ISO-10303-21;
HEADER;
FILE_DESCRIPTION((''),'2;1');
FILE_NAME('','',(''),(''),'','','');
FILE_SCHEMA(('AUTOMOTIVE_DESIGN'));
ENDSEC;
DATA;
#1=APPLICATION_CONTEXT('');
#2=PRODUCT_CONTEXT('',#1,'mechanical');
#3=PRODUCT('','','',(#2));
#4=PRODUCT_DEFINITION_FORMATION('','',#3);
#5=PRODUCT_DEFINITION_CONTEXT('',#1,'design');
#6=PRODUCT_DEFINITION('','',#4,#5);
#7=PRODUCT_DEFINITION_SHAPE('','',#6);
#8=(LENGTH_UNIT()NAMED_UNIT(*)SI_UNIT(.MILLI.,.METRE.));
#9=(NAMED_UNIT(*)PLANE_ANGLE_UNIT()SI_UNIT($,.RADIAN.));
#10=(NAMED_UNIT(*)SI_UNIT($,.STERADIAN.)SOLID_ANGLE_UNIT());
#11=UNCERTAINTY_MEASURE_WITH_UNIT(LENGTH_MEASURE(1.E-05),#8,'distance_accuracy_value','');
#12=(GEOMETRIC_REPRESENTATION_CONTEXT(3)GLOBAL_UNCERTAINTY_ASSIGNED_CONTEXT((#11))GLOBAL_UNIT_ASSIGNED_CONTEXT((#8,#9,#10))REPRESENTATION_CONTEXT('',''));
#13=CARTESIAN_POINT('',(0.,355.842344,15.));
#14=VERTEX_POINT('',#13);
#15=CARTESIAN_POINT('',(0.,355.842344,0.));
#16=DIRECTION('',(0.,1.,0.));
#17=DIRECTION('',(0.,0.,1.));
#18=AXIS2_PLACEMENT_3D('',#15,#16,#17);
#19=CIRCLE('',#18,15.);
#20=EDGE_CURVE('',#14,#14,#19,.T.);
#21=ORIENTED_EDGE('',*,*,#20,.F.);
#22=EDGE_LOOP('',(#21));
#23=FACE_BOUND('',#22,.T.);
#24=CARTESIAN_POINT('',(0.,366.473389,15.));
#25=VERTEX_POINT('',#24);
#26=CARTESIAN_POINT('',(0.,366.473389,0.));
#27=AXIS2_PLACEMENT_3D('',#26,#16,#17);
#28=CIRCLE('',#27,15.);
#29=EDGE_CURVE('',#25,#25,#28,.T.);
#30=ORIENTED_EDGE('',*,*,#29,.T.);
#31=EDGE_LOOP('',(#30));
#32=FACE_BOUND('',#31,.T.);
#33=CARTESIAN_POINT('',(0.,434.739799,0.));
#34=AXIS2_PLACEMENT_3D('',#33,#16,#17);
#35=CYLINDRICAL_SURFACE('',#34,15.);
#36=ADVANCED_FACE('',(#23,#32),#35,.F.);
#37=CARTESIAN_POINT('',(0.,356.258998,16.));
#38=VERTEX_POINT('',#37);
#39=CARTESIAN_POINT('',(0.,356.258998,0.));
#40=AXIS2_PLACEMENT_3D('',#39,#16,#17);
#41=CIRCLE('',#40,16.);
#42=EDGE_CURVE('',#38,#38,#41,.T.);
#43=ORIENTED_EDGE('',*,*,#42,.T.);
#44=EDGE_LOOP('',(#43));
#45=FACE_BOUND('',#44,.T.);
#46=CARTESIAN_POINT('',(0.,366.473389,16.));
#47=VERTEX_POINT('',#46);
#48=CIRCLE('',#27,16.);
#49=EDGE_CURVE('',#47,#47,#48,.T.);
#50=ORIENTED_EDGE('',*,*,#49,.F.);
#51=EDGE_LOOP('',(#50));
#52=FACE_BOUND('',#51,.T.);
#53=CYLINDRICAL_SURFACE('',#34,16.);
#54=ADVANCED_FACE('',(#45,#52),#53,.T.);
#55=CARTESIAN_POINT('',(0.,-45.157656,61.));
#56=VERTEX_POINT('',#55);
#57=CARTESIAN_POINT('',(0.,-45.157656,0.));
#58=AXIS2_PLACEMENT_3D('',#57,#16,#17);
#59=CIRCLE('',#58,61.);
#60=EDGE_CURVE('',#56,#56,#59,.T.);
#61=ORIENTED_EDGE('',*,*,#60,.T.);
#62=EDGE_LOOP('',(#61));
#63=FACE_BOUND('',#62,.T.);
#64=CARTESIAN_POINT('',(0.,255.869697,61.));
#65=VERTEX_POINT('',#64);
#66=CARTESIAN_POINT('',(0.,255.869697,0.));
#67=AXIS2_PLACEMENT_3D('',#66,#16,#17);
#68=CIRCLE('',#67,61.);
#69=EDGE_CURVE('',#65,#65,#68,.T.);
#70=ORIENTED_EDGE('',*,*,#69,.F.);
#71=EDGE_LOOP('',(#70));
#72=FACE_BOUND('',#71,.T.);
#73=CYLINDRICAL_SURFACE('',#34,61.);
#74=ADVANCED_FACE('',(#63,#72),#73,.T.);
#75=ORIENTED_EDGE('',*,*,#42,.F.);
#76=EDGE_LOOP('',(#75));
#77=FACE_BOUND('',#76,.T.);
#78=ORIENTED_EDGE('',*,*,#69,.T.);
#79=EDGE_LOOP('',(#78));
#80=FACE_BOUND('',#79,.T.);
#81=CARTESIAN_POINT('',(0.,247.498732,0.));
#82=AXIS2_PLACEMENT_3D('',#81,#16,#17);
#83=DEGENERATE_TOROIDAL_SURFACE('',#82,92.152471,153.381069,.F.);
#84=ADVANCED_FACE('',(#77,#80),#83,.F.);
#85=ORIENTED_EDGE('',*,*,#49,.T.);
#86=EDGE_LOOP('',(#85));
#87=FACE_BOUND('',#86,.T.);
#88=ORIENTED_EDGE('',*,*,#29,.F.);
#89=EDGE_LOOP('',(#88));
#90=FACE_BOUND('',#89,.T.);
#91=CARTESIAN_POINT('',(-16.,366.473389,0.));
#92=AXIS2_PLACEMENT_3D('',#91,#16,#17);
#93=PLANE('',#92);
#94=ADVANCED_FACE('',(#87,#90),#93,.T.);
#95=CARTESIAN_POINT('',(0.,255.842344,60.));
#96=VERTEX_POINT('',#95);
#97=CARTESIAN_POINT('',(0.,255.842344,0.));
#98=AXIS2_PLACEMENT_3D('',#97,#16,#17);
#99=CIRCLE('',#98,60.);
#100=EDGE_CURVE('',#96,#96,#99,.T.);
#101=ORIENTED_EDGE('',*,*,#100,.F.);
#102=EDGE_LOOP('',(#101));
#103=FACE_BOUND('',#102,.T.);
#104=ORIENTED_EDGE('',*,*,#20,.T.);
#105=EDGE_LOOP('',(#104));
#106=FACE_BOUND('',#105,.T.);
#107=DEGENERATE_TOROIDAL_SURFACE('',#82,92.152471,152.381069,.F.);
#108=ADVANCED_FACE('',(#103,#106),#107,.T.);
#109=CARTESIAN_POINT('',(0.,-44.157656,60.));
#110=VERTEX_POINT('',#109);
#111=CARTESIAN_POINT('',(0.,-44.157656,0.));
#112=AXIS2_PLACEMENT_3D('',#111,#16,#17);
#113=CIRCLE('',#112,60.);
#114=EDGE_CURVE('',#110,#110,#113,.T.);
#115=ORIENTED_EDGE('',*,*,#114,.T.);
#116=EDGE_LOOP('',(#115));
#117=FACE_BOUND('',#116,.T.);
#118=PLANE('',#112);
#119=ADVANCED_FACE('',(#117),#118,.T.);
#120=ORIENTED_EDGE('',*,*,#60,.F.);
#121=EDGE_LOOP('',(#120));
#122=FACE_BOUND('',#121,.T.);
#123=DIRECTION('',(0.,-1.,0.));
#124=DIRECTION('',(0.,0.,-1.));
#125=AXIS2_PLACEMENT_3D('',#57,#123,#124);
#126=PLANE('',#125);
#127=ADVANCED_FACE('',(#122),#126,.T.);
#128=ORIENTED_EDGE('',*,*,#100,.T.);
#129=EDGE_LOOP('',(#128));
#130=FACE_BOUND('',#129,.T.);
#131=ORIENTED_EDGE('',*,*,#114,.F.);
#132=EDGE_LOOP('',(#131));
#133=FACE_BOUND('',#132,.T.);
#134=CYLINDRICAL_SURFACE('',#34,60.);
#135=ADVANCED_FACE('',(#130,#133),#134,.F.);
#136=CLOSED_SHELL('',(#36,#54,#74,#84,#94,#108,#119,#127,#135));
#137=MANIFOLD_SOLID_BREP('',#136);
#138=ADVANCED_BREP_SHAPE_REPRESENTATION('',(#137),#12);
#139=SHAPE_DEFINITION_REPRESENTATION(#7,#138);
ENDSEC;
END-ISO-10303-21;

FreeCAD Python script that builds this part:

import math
import FreeCAD as App
import Part
import Sketcher

V = App.Vector
Q = App.Units.Quantity

doc = App.newDocument("Part")
params = doc.addObject("Spreadsheet::Sheet", "Params")
for row, (alias, value) in enumerate([
    ("sketch1_width", "60 mm"),
    ("sketch1_width2", "1 mm"),
    ("sketch1_width3", "61 mm"),
    ("sketch1_height", "300 mm"),
    ("revolution_angle", "360 deg"),
], start=1):
    params.set(f"A{row}", alias)
    params.set(f"B{row}", "=" + value)
    params.setAlias(f"B{row}", alias)

body = doc.addObject("PartDesign::Body", "Body")

sketch1 = body.newObject("Sketcher::SketchObject", "Sketch")
sketch1.AttachmentSupport = (doc.getObject("XY_Plane"), [""])
sketch1.MapMode = "FlatFace"
sketch1.addGeometry([
    Part.LineSegment(V(0, -44.157656, 0), V(-60, -44.157656, 0)),
    Part.LineSegment(V(-60, -44.157656, 0), V(-60, 255.842344, 0)),
    Part.ArcOfCircle(Part.Circle(V(92.152471, 247.498732, 0), V(0, 0, 1), 152.381069), math.radians(134.683304), math.radians(176.861205)),
    Part.LineSegment(V(-15, 355.842344, 0), V(-15, 366.473389, 0)),
    Part.LineSegment(V(-15, 366.473389, 0), V(-16, 366.473389, 0)),
    Part.LineSegment(V(-16, 366.473389, 0), V(-16, 356.258998, 0)),
    Part.ArcOfCircle(Part.Circle(V(92.152471, 247.498732, 0), V(0, 0, 1), 153.381069), math.radians(134.839456), math.radians(176.871456)),
    Part.LineSegment(V(-61, 255.869697, 0), V(-61, -45.157656, 0)),
    Part.LineSegment(V(-61, -45.157656, 0), V(0, -45.157656, 0)),
    Part.LineSegment(V(0, -45.157656, 0), V(0, -44.157656, 0)),
], False)
sketch1.addConstraint([
    Sketcher.Constraint("Coincident", 0, 2, 1, 1),
    Sketcher.Constraint("Coincident", 1, 2, 2, 2),
    Sketcher.Constraint("Coincident", 2, 1, 3, 1),
    Sketcher.Constraint("Coincident", 3, 2, 4, 1),
    Sketcher.Constraint("Coincident", 4, 2, 5, 1),
    Sketcher.Constraint("Coincident", 5, 2, 6, 1),
    Sketcher.Constraint("Coincident", 6, 2, 7, 1),
    Sketcher.Constraint("Coincident", 7, 2, 8, 1),
    Sketcher.Constraint("Coincident", 8, 2, 9, 1),
    Sketcher.Constraint("Coincident", 9, 2, 0, 1),
    Sketcher.Constraint("Horizontal", 0),
    Sketcher.Constraint("Vertical", 1),
    Sketcher.Constraint("Vertical", 3),
    Sketcher.Constraint("Horizontal", 4),
    Sketcher.Constraint("Vertical", 5),
    Sketcher.Constraint("Vertical", 7),
    Sketcher.Constraint("Horizontal", 8),
    Sketcher.Constraint("Vertical", 9),
    Sketcher.Constraint("Coincident", 6, 3, 2, 3),
    Sketcher.Constraint("PointOnObject", 8, 2, -2),
    Sketcher.Constraint("Equal", 4, 9),
    Sketcher.Constraint("DistanceX", 0, 2, 0, 1, Q("60 mm")),
    Sketcher.Constraint("DistanceX", 4, 2, 4, 1, Q("1 mm")),
    Sketcher.Constraint("DistanceX", 8, 1, 8, 2, Q("61 mm")),
    Sketcher.Constraint("DistanceY", 1, 1, 1, 2, Q("300 mm")),
    Sketcher.Constraint("DistanceX", 2, 1, -1, 1, Q("15 mm")),
    Sketcher.Constraint("DistanceY", 1, 2, 2, 1, Q("100 mm")),
    Sketcher.Constraint("Radius", 2, Q("152.381069 mm")),
    Sketcher.Constraint("Radius", 6, Q("153.381069 mm")),
    Sketcher.Constraint("DistanceY", -1, 1, 5, 2, Q("356.258998 mm")),
    Sketcher.Constraint("DistanceY", 5, 2, 5, 1, Q("10.21439 mm")),
])
sketch1.setExpression("Constraints[21]", "Params.sketch1_width")
sketch1.setExpression("Constraints[22]", "Params.sketch1_width2")
sketch1.setExpression("Constraints[23]", "Params.sketch1_width3")
sketch1.setExpression("Constraints[24]", "Params.sketch1_height")
revolution = body.newObject("PartDesign::Revolution", "Revolution")
revolution.Profile = sketch1
revolution.ReferenceAxis = (sketch1, ["V_Axis"])
revolution.setExpression("Angle", "Params.revolution_angle")

doc.recompute()
